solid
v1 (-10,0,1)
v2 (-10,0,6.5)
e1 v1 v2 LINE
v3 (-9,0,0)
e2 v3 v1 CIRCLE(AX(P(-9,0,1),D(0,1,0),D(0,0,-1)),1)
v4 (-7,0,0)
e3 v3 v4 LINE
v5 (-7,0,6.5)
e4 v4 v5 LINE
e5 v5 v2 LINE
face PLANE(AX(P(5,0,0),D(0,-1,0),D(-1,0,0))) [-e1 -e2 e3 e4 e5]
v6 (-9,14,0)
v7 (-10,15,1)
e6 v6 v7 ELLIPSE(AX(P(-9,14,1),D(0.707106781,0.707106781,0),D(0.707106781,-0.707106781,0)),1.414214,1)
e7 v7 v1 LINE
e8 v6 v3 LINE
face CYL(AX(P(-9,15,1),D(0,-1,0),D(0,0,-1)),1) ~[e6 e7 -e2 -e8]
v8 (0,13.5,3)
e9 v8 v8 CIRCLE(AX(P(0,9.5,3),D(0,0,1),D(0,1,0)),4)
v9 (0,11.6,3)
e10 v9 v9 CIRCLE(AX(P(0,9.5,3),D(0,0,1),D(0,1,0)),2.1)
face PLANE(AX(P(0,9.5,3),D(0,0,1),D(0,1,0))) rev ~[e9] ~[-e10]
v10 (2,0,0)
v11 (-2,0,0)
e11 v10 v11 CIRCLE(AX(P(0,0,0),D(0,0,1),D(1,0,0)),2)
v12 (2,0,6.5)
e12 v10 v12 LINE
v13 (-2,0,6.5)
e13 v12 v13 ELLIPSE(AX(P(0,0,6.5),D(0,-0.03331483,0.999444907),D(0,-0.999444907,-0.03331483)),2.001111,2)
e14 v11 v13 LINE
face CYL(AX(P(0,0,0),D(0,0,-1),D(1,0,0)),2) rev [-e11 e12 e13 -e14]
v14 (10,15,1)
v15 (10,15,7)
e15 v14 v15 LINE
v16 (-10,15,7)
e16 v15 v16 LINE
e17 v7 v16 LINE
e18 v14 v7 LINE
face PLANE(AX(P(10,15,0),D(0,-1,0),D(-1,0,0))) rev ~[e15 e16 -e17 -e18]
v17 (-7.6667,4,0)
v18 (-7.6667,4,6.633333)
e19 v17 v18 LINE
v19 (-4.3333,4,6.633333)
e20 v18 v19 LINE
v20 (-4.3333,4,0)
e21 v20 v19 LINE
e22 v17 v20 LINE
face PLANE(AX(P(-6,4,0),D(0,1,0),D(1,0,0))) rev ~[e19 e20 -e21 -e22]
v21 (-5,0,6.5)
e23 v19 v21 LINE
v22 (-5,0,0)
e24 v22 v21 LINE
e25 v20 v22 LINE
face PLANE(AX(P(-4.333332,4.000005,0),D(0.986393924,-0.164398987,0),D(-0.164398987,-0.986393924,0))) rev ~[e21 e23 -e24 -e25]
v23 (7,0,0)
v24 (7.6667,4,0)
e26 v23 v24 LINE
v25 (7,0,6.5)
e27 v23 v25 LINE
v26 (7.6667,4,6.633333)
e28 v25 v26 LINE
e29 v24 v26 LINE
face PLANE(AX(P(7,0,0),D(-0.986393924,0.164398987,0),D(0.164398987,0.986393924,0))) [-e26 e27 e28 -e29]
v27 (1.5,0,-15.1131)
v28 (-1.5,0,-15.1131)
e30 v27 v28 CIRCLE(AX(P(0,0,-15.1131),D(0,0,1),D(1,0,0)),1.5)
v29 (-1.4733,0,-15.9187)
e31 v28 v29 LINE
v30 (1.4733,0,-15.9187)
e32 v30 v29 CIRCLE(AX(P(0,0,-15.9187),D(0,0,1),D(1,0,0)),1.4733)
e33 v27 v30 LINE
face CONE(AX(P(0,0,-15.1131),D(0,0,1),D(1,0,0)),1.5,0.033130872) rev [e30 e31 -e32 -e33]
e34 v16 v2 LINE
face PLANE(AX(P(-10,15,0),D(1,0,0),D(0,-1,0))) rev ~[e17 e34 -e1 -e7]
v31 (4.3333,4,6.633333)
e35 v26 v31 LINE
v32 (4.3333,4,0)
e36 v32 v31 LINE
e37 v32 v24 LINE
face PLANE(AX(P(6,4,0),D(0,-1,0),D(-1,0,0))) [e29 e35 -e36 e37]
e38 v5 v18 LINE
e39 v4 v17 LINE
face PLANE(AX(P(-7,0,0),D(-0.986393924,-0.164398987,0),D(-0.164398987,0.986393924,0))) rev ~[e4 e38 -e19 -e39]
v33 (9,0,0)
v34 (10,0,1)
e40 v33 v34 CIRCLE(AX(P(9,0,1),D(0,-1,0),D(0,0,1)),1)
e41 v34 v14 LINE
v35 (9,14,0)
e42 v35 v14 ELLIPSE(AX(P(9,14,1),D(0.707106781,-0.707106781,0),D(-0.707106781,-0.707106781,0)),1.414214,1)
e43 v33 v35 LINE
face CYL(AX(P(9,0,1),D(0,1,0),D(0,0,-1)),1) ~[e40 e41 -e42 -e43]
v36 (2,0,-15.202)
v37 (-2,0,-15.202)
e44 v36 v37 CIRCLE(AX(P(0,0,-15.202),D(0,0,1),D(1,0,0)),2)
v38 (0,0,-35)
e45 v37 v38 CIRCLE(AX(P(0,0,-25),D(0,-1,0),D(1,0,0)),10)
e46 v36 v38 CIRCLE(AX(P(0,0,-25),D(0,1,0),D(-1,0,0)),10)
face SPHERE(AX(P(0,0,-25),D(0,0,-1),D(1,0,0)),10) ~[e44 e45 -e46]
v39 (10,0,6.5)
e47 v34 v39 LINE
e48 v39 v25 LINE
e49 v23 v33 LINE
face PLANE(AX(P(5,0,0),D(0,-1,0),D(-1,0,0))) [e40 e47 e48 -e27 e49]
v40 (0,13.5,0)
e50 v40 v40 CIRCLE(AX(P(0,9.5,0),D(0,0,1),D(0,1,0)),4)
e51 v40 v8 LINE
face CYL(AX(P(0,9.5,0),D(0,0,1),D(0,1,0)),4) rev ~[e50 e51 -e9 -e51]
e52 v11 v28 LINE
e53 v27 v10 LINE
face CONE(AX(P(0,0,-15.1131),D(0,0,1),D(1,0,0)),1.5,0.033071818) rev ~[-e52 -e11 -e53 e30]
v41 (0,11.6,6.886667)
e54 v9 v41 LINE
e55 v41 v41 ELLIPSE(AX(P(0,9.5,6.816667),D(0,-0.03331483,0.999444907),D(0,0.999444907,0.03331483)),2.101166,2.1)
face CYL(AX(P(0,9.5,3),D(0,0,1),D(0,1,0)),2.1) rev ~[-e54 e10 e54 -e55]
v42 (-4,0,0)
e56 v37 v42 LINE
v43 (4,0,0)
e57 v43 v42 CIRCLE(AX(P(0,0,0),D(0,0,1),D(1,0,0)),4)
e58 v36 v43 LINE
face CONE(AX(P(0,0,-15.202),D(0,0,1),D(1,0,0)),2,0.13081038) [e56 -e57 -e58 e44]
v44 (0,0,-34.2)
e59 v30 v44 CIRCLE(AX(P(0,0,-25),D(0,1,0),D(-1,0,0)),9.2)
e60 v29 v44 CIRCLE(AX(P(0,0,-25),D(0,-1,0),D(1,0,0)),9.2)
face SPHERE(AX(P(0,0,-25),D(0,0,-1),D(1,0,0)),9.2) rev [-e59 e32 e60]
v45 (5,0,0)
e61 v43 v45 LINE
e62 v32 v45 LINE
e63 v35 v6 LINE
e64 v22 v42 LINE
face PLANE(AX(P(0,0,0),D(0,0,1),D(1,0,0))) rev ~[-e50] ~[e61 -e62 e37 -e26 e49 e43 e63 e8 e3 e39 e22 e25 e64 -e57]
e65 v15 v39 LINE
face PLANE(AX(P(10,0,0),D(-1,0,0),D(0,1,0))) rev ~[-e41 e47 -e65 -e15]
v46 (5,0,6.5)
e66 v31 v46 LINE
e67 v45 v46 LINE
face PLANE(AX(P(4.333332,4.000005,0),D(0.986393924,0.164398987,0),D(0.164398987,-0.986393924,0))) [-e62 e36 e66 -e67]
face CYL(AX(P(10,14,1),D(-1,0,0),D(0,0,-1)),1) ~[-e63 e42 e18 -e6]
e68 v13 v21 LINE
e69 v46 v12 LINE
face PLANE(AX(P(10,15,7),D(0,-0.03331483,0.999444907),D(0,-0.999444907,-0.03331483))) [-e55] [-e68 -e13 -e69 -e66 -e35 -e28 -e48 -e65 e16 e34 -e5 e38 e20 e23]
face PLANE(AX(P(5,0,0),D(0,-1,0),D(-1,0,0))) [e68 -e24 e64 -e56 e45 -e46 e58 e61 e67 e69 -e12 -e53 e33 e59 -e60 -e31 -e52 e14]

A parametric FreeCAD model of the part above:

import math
import FreeCAD as App
import Part
import Sketcher

V = App.Vector


def edges_at(feature, points):
    """Names of the edges that pass closest to the given points."""
    edges = feature.Shape.Edges
    near = lambda p: min(range(len(edges)), key=lambda i: edges[i].distToShape(Part.Vertex(*p))[0])
    return sorted({f"Edge{near(p) + 1}" for p in points})

doc = App.newDocument("Part")
body = doc.addObject("PartDesign::Body", "Body")

# Sketch on XZ plane
sketch1 = body.newObject("Sketcher::SketchObject", "Sketch")
sketch1.AttachmentSupport = (doc.getObject("XZ_Plane"), [""])
sketch1.MapMode = "FlatFace"
sketch1.addGeometry(Part.LineSegment(V(2, 0, 0), V(4, 0, 0)), False)
sketch1.addGeometry(Part.LineSegment(V(4, 0, 0), V(2, -15.2, 0)), False)
sketch1.addGeometry(Part.ArcOfCircle(Part.Circle(V(0, -25, 0), V(0, 0, 1), 10), math.radians(-90), math.radians(78)), False)
sketch1.addGeometry(Part.LineSegment(V(0, -35, 0), V(0, -34.2, 0)), False)
sketch1.addGeometry(Part.ArcOfCircle(Part.Circle(V(0, -25, 0), V(0, 0, 1), 9.2), math.radians(-90), math.radians(81)), False)
sketch1.addGeometry(Part.LineSegment(V(1.5, -15.9, 0), V(1.5, -15.1, 0)), False)
sketch1.addGeometry(Part.LineSegment(V(1.5, -15.1, 0), V(2, 0, 0)), False)
sketch1.addConstraint(Sketcher.Constraint("Coincident", 0, 2, 1, 1))
sketch1.addConstraint(Sketcher.Constraint("Coincident", 1, 2, 2, 2))
sketch1.addConstraint(Sketcher.Constraint("Coincident", 2, 1, 3, 1))
sketch1.addConstraint(Sketcher.Constraint("Coincident", 3, 2, 4, 1))
sketch1.addConstraint(Sketcher.Constraint("Coincident", 4, 2, 5, 1))
sketch1.addConstraint(Sketcher.Constraint("Coincident", 5, 2, 6, 1))
sketch1.addConstraint(Sketcher.Constraint("Coincident", 6, 2, 0, 1))
sketch1.addConstraint(Sketcher.Constraint("Horizontal", 0))
sketch1.addConstraint(Sketcher.Constraint("Vertical", 3))
sketch1.addConstraint(Sketcher.Constraint("Coincident", 4, 3, 2, 3))
sketch1.addConstraint(Sketcher.Constraint("PointOnObject", 2, 3, -2))
sketch1.addConstraint(Sketcher.Constraint("PointOnObject", 0, 2, -1))
sketch1.addConstraint(Sketcher.Constraint("PointOnObject", 2, 1, -2))
sketch1.addConstraint(Sketcher.Constraint("Parallel", 5, 6))
sketch1.addConstraint(Sketcher.Constraint("Vertical", 1, 2, 6, 2))
sketch1.addConstraint(Sketcher.Constraint("Radius", 2, 10.0))
sketch1.addConstraint(Sketcher.Constraint("Radius", 4, 9.2))
sketch1.addConstraint(Sketcher.Constraint("DistanceX", 0, 1, 0, 2, 2.0))
sketch1.addConstraint(Sketcher.Constraint("DistanceX", -1, 1, 1, 2, 2.0))
sketch1.addConstraint(Sketcher.Constraint("DistanceX", -1, 1, 5, 2, 1.5))
sketch1.addConstraint(Sketcher.Constraint("DistanceY", 2, 3, -1, 1, 25.0))
sketch1.addConstraint(Sketcher.Constraint("Distance", 5, 0.806))
revolution = body.newObject("PartDesign::Revolution", "Revolution")
revolution.Profile = sketch1
revolution.ReferenceAxis = (sketch1, ["V_Axis"])
revolution.Angle = 180

# Sketch on XY plane
sketch2 = body.newObject("Sketcher::SketchObject", "Sketch001")
sketch2.AttachmentSupport = (doc.getObject("XY_Plane"), [""])
sketch2.MapMode = "FlatFace"
sketch2.addGeometry(Part.LineSegment(V(2, 0, 0), V(10, 0, 0)), False)
sketch2.addGeometry(Part.LineSegment(V(10, 0, 0), V(10, 15, 0)), False)
sketch2.addGeometry(Part.LineSegment(V(10, 15, 0), V(-10, 15, 0)), False)
sketch2.addGeometry(Part.LineSegment(V(-10, 15, 0), V(-10, 0, 0)), False)
sketch2.addGeometry(Part.LineSegment(V(-10, 0, 0), V(-2, 0, 0)), False)
sketch2.addGeometry(Part.ArcOfCircle(Part.Circle(V(0, 0, 0), V(0, 0, 1), 2), math.radians(0), math.radians(180)), False)
sketch2.addConstraint(Sketcher.Constraint("Coincident", 0, 2, 1, 1))
sketch2.addConstraint(Sketcher.Constraint("Coincident", 1, 2, 2, 1))
sketch2.addConstraint(Sketcher.Constraint("Coincident", 2, 2, 3, 1))
sketch2.addConstraint(Sketcher.Constraint("Coincident", 3, 2, 4, 1))
sketch2.addConstraint(Sketcher.Constraint("Coincident", 4, 2, 5, 2))
sketch2.addConstraint(Sketcher.Constraint("Coincident", 5, 1, 0, 1))
sketch2.addConstraint(Sketcher.Constraint("Horizontal", 0))
sketch2.addConstraint(Sketcher.Constraint("Vertical", 1))
sketch2.addConstraint(Sketcher.Constraint("Horizontal", 2))
sketch2.addConstraint(Sketcher.Constraint("Vertical", 3))
sketch2.addConstraint(Sketcher.Constraint("Horizontal", 4))
sketch2.addConstraint(Sketcher.Constraint("Coincident", 5, 3, -1, 1))
sketch2.addConstraint(Sketcher.Constraint("Symmetric", 0, 2, 3, 2, -1, 1))
sketch2.addConstraint(Sketcher.Constraint("PointOnObject", 0, 2, -1))
sketch2.addConstraint(Sketcher.Constraint("DistanceX", 2, 2, 2, 1, 20.0))
sketch2.addConstraint(Sketcher.Constraint("DistanceY", 1, 1, 1, 2, 15.0))
sketch2.addConstraint(Sketcher.Constraint("Radius", 5, 2.0))
pad1 = body.newObject("PartDesign::Pad", "Pad")
pad1.Profile = sketch2
pad1.Length = 7

# Sketch on XY plane
sketch3 = body.newObject("Sketcher::SketchObject", "Sketch002")
sketch3.AttachmentSupport = (doc.getObject("XY_Plane"), [""])
sketch3.MapMode = "FlatFace"
sketch3.addGeometry(Part.Circle(V(0, 9.5, 0), V(0, 0, 1), 2.1), False)
sketch3.addConstraint(Sketcher.Constraint("PointOnObject", 0, 3, -2))
sketch3.addConstraint(Sketcher.Constraint("Diameter", 0, 4.2))
sketch3.addConstraint(Sketcher.Constraint("DistanceY", -1, 1, 0, 3, 9.5))
doc.recompute()
hole = body.newObject("PartDesign::Hole", "Hole")
hole.Profile = sketch3
hole.ThreadType = "None"
hole.Diameter = 4.2
hole.DepthType = "ThroughAll"
hole.HoleCutType = "Counterbore"
hole.HoleCutDiameter = 8
hole.HoleCutDepth = 3
hole.Reversed = True

# Sketch on XY plane
sketch4 = body.newObject("Sketcher::SketchObject", "Sketch003")
sketch4.AttachmentSupport = (doc.getObject("XY_Plane"), [""])
sketch4.MapMode = "FlatFace"
sketch4.addGeometry(Part.LineSegment(V(5, 0, 0), V(4.3, 4, 0)), False)
sketch4.addGeometry(Part.LineSegment(V(4.3, 4, 0), V(7.7, 4, 0)), False)
sketch4.addGeometry(Part.LineSegment(V(7.7, 4, 0), V(7, 0, 0)), False)
sketch4.addGeometry(Part.LineSegment(V(7, 0, 0), V(5, 0, 0)), False)
sketch4.addGeometry(Part.LineSegment(V(-5, 0, 0), V(-7, 0, 0)), False)
sketch4.addGeometry(Part.LineSegment(V(-7, 0, 0), V(-7.7, 4, 0)), False)
sketch4.addGeometry(Part.LineSegment(V(-7.7, 4, 0), V(-4.3, 4, 0)), False)
sketch4.addGeometry(Part.LineSegment(V(-4.3, 4, 0), V(-5, 0, 0)), False)
sketch4.addConstraint(Sketcher.Constraint("Coincident", 0, 2, 1, 1))
sketch4.addConstraint(Sketcher.Constraint("Coincident", 1, 2, 2, 1))
sketch4.addConstraint(Sketcher.Constraint("Coincident", 2, 2, 3, 1))
sketch4.addConstraint(Sketcher.Constraint("Coincident", 3, 2, 0, 1))
sketch4.addConstraint(Sketcher.Constraint("Coincident", 4, 2, 5, 1))
sketch4.addConstraint(Sketcher.Constraint("Coincident", 5, 2, 6, 1))
sketch4.addConstraint(Sketcher.Constraint("Coincident", 6, 2, 7, 1))
sketch4.addConstraint(Sketcher.Constraint("Coincident", 7, 2, 4, 1))
sketch4.addConstraint(Sketcher.Constraint("Horizontal", 1))
sketch4.addConstraint(Sketcher.Constraint("Horizontal", 3))
sketch4.addConstraint(Sketcher.Constraint("Horizontal", 4))
sketch4.addConstraint(Sketcher.Constraint("Horizontal", 6))
sketch4.addConstraint(Sketcher.Constraint("Symmetric", 2, 2, 4, 2, -1, 1))
sketch4.addConstraint(Sketcher.Constraint("Symmetric", 1, 2, 5, 2, -2))
sketch4.addConstraint(Sketcher.Constraint("Symmetric", 3, 2, 7, 2, -2))
sketch4.addConstraint(Sketcher.Constraint("Parallel", 0, 5))
sketch4.addConstraint(Sketcher.Constraint("Parallel", 2, 7))
sketch4.addConstraint(Sketcher.Constraint("DistanceX", 3, 2, 3, 1, 2.0))
sketch4.addConstraint(Sketcher.Constraint("DistanceY", -1, 1, 0, 2, 4.0))
sketch4.addConstraint(Sketcher.Constraint("DistanceX", -1, 1, 2, 2, 7.0))
sketch4.addConstraint(Sketcher.Constraint("DistanceX", 1, 1, 1, 2, 3.3334))
pocket1 = body.newObject("PartDesign::Pocket", "Pocket")
pocket1.Profile = sketch4
pocket1.Type = "ThroughAll"
pocket1.Reversed = True

# Sketch on YZ plane
sketch5 = body.newObject("Sketcher::SketchObject", "Sketch004")
sketch5.AttachmentSupport = (doc.getObject("YZ_Plane"), [""])
sketch5.MapMode = "FlatFace"
sketch5.AttachmentOffset = App.Placement(V(0, 0, 10), App.Rotation())
sketch5.addGeometry(Part.LineSegment(V(0, 7, 0), V(0, 6.5, 0)), False)
sketch5.addGeometry(Part.LineSegment(V(0, 6.5, 0), V(15, 7, 0)), False)
sketch5.addGeometry(Part.LineSegment(V(15, 7, 0), V(0, 7, 0)), False)
sketch5.addConstraint(Sketcher.Constraint("Coincident", 0, 2, 1, 1))
sketch5.addConstraint(Sketcher.Constraint("Coincident", 1, 2, 2, 1))
sketch5.addConstraint(Sketcher.Constraint("Coincident", 2, 2, 0, 1))
sketch5.addConstraint(Sketcher.Constraint("Vertical", 0))
sketch5.addConstraint(Sketcher.Constraint("Horizontal", 2))
sketch5.addConstraint(Sketcher.Constraint("PointOnObject", 0, 2, -2))
sketch5.addConstraint(Sketcher.Constraint("DistanceY", 0, 2, 0, 1, 0.5))
sketch5.addConstraint(Sketcher.Constraint("DistanceX", 2, 2, 2, 1, 15.0))
sketch5.addConstraint(Sketcher.Constraint("DistanceY", -1, 1, 1, 2, 7.0))
pocket2 = body.newObject("PartDesign::Pocket", "Pocket001")
pocket2.Profile = sketch5
pocket2.Type = "ThroughAll"
doc.recompute()

fillet = body.newObject("PartDesign::Fillet", "Fillet")
fillet.Base = (pocket2, edges_at(pocket2, [(-10, 7.5, 0), (0, 15, 0), (10, 7.5, 0)]))
fillet.Radius = 1

doc.recompute()
